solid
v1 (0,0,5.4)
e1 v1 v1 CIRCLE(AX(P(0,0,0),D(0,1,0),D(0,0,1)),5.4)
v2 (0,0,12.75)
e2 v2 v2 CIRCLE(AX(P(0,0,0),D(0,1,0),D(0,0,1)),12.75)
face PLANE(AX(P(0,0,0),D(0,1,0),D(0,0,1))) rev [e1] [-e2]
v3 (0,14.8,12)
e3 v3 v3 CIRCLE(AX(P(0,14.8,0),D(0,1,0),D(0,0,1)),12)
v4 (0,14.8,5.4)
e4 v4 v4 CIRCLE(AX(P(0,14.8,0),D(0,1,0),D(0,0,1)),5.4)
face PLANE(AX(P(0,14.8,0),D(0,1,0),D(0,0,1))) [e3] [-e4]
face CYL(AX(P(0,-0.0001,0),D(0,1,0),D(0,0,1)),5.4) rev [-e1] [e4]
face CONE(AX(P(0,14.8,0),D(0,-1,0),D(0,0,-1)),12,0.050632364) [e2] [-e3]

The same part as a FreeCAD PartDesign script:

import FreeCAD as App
import Part
import Sketcher

V = App.Vector
Q = App.Units.Quantity

doc = App.newDocument("Part")
body = doc.addObject("PartDesign::Body", "Body")

# Sketch on XZ plane
sketch1 = body.newObject("Sketcher::SketchObject", "Sketch")
sketch1.AttachmentSupport = (doc.getObject("XZ_Plane"), [""])
sketch1.MapMode = "FlatFace"
sketch1.AttachmentOffset = App.Placement(V(0, 0, -14.8), App.Rotation())
sketch1.addGeometry(Part.Circle(V(0, 0, 0), V(0, 0, 1), 12), False)
sketch1.addConstraint([
    Sketcher.Constraint("Coincident", 0, 3, -1, 1),
    Sketcher.Constraint("Diameter", 0, Q("24 mm")),
])

# Sketch on XZ plane
sketch2 = body.newObject("Sketcher::SketchObject", "Sketch001")
sketch2.AttachmentSupport = (doc.getObject("XZ_Plane"), [""])
sketch2.MapMode = "FlatFace"
sketch2.addGeometry(Part.Circle(V(0, 0, 0), V(0, 0, 1), 12.75), False)
sketch2.addConstraint([
    Sketcher.Constraint("Coincident", 0, 3, -1, 1),
    Sketcher.Constraint("Diameter", 0, Q("25.5 mm")),
])

additiveloft = body.newObject("PartDesign::AdditiveLoft", "AdditiveLoft")
additiveloft.Profile = sketch1
additiveloft.Sections = [sketch2]

# Sketch on XZ plane
sketch3 = body.newObject("Sketcher::SketchObject", "Sketch002")
sketch3.AttachmentSupport = (doc.getObject("XZ_Plane"), [""])
sketch3.MapMode = "FlatFace"
sketch3.AttachmentOffset = App.Placement(V(0, 0, -14.8), App.Rotation())
sketch3.addGeometry(Part.Circle(V(0, 0, 0), V(0, 0, 1), 5.4), False)
sketch3.addConstraint([
    Sketcher.Constraint("Coincident", 0, 3, -1, 1),
    Sketcher.Constraint("Diameter", 0, Q("10.8 mm")),
])
pocket1 = body.newObject("PartDesign::Pocket", "Pocket")
pocket1.Profile = sketch3
pocket1.Type = "ThroughAll"
pocket1.Reversed = True

doc.recompute()
